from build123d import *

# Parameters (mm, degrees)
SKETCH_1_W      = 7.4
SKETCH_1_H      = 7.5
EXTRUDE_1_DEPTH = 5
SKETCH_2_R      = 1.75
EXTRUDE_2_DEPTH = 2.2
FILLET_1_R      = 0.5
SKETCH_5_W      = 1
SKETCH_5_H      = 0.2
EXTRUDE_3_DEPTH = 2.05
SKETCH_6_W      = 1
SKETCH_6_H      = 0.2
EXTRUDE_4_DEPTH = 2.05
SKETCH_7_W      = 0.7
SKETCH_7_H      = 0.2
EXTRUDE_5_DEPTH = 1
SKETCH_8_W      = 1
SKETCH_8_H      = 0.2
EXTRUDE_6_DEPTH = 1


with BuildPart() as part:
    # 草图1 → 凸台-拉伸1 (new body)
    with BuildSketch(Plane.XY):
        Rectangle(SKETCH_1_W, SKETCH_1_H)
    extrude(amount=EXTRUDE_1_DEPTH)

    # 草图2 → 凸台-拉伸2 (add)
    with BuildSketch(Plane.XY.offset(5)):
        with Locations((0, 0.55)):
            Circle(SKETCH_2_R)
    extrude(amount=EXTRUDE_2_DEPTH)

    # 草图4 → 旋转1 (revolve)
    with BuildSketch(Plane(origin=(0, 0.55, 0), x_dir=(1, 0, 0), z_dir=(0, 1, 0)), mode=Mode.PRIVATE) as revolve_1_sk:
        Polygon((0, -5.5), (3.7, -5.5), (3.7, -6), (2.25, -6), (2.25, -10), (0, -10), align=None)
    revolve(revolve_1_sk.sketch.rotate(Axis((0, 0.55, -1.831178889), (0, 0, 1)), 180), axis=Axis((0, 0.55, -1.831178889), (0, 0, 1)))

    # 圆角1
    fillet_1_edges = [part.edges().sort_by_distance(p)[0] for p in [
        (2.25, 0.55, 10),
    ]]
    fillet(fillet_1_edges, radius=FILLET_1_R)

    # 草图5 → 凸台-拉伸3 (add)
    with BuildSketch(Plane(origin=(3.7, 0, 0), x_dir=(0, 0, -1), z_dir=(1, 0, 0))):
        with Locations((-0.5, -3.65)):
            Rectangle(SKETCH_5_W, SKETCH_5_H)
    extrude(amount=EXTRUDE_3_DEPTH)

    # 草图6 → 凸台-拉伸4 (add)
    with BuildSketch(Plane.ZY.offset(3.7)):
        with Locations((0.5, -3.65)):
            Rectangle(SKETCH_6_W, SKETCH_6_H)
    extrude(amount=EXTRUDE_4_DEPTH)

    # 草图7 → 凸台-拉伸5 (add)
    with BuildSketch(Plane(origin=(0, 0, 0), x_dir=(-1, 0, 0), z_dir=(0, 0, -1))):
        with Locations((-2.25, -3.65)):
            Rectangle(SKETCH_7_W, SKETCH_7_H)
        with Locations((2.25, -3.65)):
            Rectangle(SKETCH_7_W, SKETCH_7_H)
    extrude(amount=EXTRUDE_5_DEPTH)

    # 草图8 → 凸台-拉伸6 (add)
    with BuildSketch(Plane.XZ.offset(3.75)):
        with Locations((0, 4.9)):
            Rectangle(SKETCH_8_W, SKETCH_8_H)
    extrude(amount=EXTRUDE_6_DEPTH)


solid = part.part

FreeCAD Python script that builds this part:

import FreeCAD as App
import Part
import Sketcher
from FreeCAD import Vector
Q = App.Units.Quantity


def edges_at(feature, points):
    """Names of the edges that pass closest to the given points."""
    edges = feature.Shape.Edges
    near = lambda p: min(range(len(edges)), key=lambda i: edges[i].distToShape(Part.Vertex(*p))[0])
    return sorted({f"Edge{near(p) + 1}" for p in points})

doc = App.newDocument("Part")
params = doc.addObject("Spreadsheet::Sheet", "Params")
for row, (alias, value) in enumerate([
    ("sketch1_width", "7.4 mm"),
    ("sketch1_height", "7.5 mm"),
    ("pad1_length", "5 mm"),
    ("sketch2_diameter", "3.5 mm"),
    ("pad2_length", "2.2 mm"),
    ("sketch3_height", "4 mm"),
    ("sketch3_width", "3.7 mm"),
    ("sketch3_height2", "4.5 mm"),
    ("sketch3_width2", "2.25 mm"),
    ("revolution_angle", "360 deg"),
    ("fillet_radius", "0.5 mm"),
    ("sketch4_height", "1 mm"),
    ("sketch4_width", "0.2 mm"),
    ("pad3_length", "2.05 mm"),
    ("sketch5_height", "1 mm"),
    ("sketch5_width", "0.2 mm"),
    ("pad4_length", "2.05 mm"),
    ("sketch6_width", "0.7 mm"),
    ("sketch6_height", "0.2 mm"),
    ("pad5_length", "1 mm"),
    ("sketch7_width", "1 mm"),
    ("sketch7_height", "0.2 mm"),
    ("pad6_length", "1 mm"),
], start=1):
    params.set(f"A{row}", alias)
    params.set(f"B{row}", "=" + value)
    params.setAlias(f"B{row}", alias)

body = doc.addObject("PartDesign::Body", "Body")

# Sketch on XY plane
sketch1 = body.newObject("Sketcher::SketchObject", "Sketch")
sketch1.AttachmentSupport = (doc.getObject("XY_Plane"), [""])
sketch1.MapMode = "FlatFace"
sketch1.addGeometry([
    Part.LineSegment(Vector(-4, 4, 0), Vector(-4, -4, 0)),
    Part.LineSegment(Vector(-4, -4, 0), Vector(4, -4, 0)),
    Part.LineSegment(Vector(4, -4, 0), Vector(4, 4, 0)),
    Part.LineSegment(Vector(4, 4, 0), Vector(-4, 4, 0)),
], False)
sketch1.addConstraint([
    Sketcher.Constraint("Coincident", 0, 2, 1, 1),
    Sketcher.Constraint("Coincident", 1, 2, 2, 1),
    Sketcher.Constraint("Coincident", 2, 2, 3, 1),
    Sketcher.Constraint("Coincident", 3, 2, 0, 1),
    Sketcher.Constraint("Vertical", 0),
    Sketcher.Constraint("Horizontal", 1),
    Sketcher.Constraint("Vertical", 2),
    Sketcher.Constraint("Horizontal", 3),
    Sketcher.Constraint("Symmetric", 0, 2, 2, 2, -1, 1),
    Sketcher.Constraint("DistanceX", 1, 1, 1, 2, Q("7.4 mm")),
    Sketcher.Constraint("DistanceY", 0, 2, 0, 1, Q("7.5 mm")),
])
sketch1.setExpression("Constraints[9]", "Params.sketch1_width")
sketch1.setExpression("Constraints[10]", "Params.sketch1_height")
pad1 = body.newObject("PartDesign::Pad", "Pad")
pad1.Profile = sketch1
pad1.setExpression("Length", "Params.pad1_length")

# Sketch on XY plane
sketch2 = body.newObject("Sketcher::SketchObject", "Sketch001")
sketch2.AttachmentSupport = (doc.getObject("XY_Plane"), [""])
sketch2.MapMode = "FlatFace"
sketch2.AttachmentOffset = App.Placement(Vector(0, 0, 5), App.Rotation())
sketch2.addGeometry(Part.Circle(Vector(0, 0.6, 0), Vector(0, 0, 1), 1.8), False)
sketch2.addConstraint([
    Sketcher.Constraint("PointOnObject", 0, 3, -2),
    Sketcher.Constraint("Diameter", 0, Q("3.5 mm")),
    Sketcher.Constraint("DistanceY", -1, 1, 0, 3, Q("0.55 mm")),
])
sketch2.setExpression("Constraints[1]", "Params.sketch2_diameter")
pad2 = body.newObject("PartDesign::Pad", "Pad001")
pad2.Profile = sketch2
pad2.setExpression("Length", "Params.pad2_length")

# Sketch on XZ plane
sketch3 = body.newObject("Sketcher::SketchObject", "Sketch002")
sketch3.AttachmentSupport = (doc.getObject("XZ_Plane"), [""])
sketch3.MapMode = "FlatFace"
sketch3.AttachmentOffset = App.Placement(Vector(0, 0, -0.55), App.Rotation())
sketch3.addGeometry([
    Part.LineSegment(Vector(3.7, 5.5, 0), Vector(0, 5.5, 0)),  # 0
    Part.LineSegment(Vector(0, 5.5, 0), Vector(0, 10, 0)),  # 1
    Part.LineSegment(Vector(0, 10, 0), Vector(2.2, 10, 0)),  # 2
    Part.LineSegment(Vector(2.2, 10, 0), Vector(2.2, 6, 0)),  # 3
    Part.LineSegment(Vector(2.2, 6, 0), Vector(3.7, 6, 0)),  # 4
    Part.LineSegment(Vector(3.7, 6, 0), Vector(3.7, 5.5, 0)),  # 5
], False)
sketch3.addConstraint([
    Sketcher.Constraint("Coincident", 0, 2, 1, 1),
    Sketcher.Constraint("Coincident", 1, 2, 2, 1),
    Sketcher.Constraint("Coincident", 2, 2, 3, 1),
    Sketcher.Constraint("Coincident", 3, 2, 4, 1),
    Sketcher.Constraint("Coincident", 4, 2, 5, 1),
    Sketcher.Constraint("Coincident", 5, 2, 0, 1),
    Sketcher.Constraint("Horizontal", 0),
    Sketcher.Constraint("Vertical", 1),
    Sketcher.Constraint("Horizontal", 2),
    Sketcher.Constraint("Vertical", 3),
    Sketcher.Constraint("Horizontal", 4),
    Sketcher.Constraint("Vertical", 5),
    Sketcher.Constraint("PointOnObject", 0, 2, -2),
    Sketcher.Constraint("DistanceY", 3, 2, 3, 1, Q("4 mm")),
    Sketcher.Constraint("DistanceX", 0, 2, 0, 1, Q("3.7 mm")),
    Sketcher.Constraint("DistanceY", 1, 1, 1, 2, Q("4.5 mm")),
    Sketcher.Constraint("DistanceY", -1, 1, 1, 2, Q("10 mm")),
    Sketcher.Constraint("DistanceX", 2, 1, 2, 2, Q("2.25 mm")),
])
sketch3.setExpression("Constraints[13]", "Params.sketch3_height")
sketch3.setExpression("Constraints[14]", "Params.sketch3_width")
sketch3.setExpression("Constraints[15]", "Params.sketch3_height2")
sketch3.setExpression("Constraints[17]", "Params.sketch3_width2")
revolution = body.newObject("PartDesign::Revolution", "Revolution")
revolution.Profile = sketch3
revolution.ReferenceAxis = (sketch3, ["V_Axis"])
revolution.setExpression("Angle", "Params.revolution_angle")
doc.recompute()

fillet = body.newObject("PartDesign::Fillet", "Fillet")
fillet.Base = (revolution, edges_at(revolution, [(2.25, 0.55, 10)]))
fillet.setExpression("Radius", "Params.fillet_radius")

# Sketch on YZ plane
sketch4 = body.newObject("Sketcher::SketchObject", "Sketch003")
sketch4.AttachmentSupport = (doc.getObject("YZ_Plane"), [""])
sketch4.MapMode = "FlatFace"
sketch4.AttachmentOffset = App.Placement(Vector(0, 0, 3.7), App.Rotation())
sketch4.addGeometry([
    Part.LineSegment(Vector(-3.55, 1, 0), Vector(-3.75, 1, 0)),
    Part.LineSegment(Vector(-3.75, 1, 0), Vector(-3.75, 0, 0)),
    Part.LineSegment(Vector(-3.75, 0, 0), Vector(-3.55, 0, 0)),
    Part.LineSegment(Vector(-3.55, 0, 0), Vector(-3.55, 1, 0)),
], False)
sketch4.addConstraint([
    Sketcher.Constraint("Coincident", 0, 2, 1, 1),
    Sketcher.Constraint("Coincident", 1, 2, 2, 1),
    Sketcher.Constraint("Coincident", 2, 2, 3, 1),
    Sketcher.Constraint("Coincident", 3, 2, 0, 1),
    Sketcher.Constraint("Horizontal", 0),
    Sketcher.Constraint("Vertical", 1),
    Sketcher.Constraint("Horizontal", 2),
    Sketcher.Constraint("Vertical", 3),
    Sketcher.Constraint("PointOnObject", 1, 2, -1),
    Sketcher.Constraint("DistanceY", 1, 2, 1, 1, Q("1 mm")),
    Sketcher.Constraint("DistanceX", 0, 2, 0, 1, Q("0.2 mm")),
    Sketcher.Constraint("DistanceX", 0, 2, -1, 1, Q("3.75 mm")),
])
sketch4.setExpression("Constraints[9]", "Params.sketch4_height")
sketch4.setExpression("Constraints[10]", "Params.sketch4_width")
pad3 = body.newObject("PartDesign::Pad", "Pad002")
pad3.Profile = sketch4
pad3.setExpression("Length", "Params.pad3_length")

# Sketch on YZ plane
sketch5 = body.newObject("Sketcher::SketchObject", "Sketch004")
sketch5.AttachmentSupport = (doc.getObject("YZ_Plane"), [""])
sketch5.MapMode = "FlatFace"
sketch5.AttachmentOffset = App.Placement(Vector(0, 0, -3.7), App.Rotation())
sketch5.addGeometry([
    Part.LineSegment(Vector(-3.55, 0, 0), Vector(-3.75, 0, 0)),
    Part.LineSegment(Vector(-3.75, 0, 0), Vector(-3.75, 1, 0)),
    Part.LineSegment(Vector(-3.75, 1, 0), Vector(-3.55, 1, 0)),
    Part.LineSegment(Vector(-3.55, 1, 0), Vector(-3.55, 0, 0)),
], False)
sketch5.addConstraint([
    Sketcher.Constraint("Coincident", 0, 2, 1, 1),
    Sketcher.Constraint("Coincident", 1, 2, 2, 1),
    Sketcher.Constraint("Coincident", 2, 2, 3, 1),
    Sketcher.Constraint("Coincident", 3, 2, 0, 1),
    Sketcher.Constraint("Horizontal", 0),
    Sketcher.Constraint("Vertical", 1),
    Sketcher.Constraint("Horizontal", 2),
    Sketcher.Constraint("Vertical", 3),
    Sketcher.Constraint("PointOnObject", 0, 2, -1),
    Sketcher.Constraint("DistanceY", 1, 1, 1, 2, Q("1 mm")),
    Sketcher.Constraint("DistanceX", 0, 2, 0, 1, Q("0.2 mm")),
    Sketcher.Constraint("DistanceX", 0, 2, -1, 1, Q("3.75 mm")),
])
sketch5.setExpression("Constraints[9]", "Params.sketch5_height")
sketch5.setExpression("Constraints[10]", "Params.sketch5_width")
pad4 = body.newObject("PartDesign::Pad", "Pad003")
pad4.Profile = sketch5
pad4.setExpression("Length", "Params.pad4_length")
pad4.Reversed = True

# Sketch on XY plane
sketch6 = body.newObject("Sketcher::SketchObject", "Sketch005")
sketch6.AttachmentSupport = (doc.getObject("XY_Plane"), [""])
sketch6.MapMode = "FlatFace"
sketch6.addGeometry([
    Part.LineSegment(Vector(2.6, -3.55, 0), Vector(2.6, -3.75, 0)),  # 0
    Part.LineSegment(Vector(2.6, -3.75, 0), Vector(1.9, -3.75, 0)),  # 1
    Part.LineSegment(Vector(1.9, -3.75, 0), Vector(1.9, -3.55, 0)),  # 2
    Part.LineSegment(Vector(1.9, -3.55, 0), Vector(2.6, -3.55, 0)),  # 3
    Part.LineSegment(Vector(-1.9, -3.55, 0), Vector(-1.9, -3.75, 0)),  # 4
    Part.LineSegment(Vector(-1.9, -3.75, 0), Vector(-2.6, -3.75, 0)),  # 5
    Part.LineSegment(Vector(-2.6, -3.75, 0), Vector(-2.6, -3.55, 0)),  # 6
    Part.LineSegment(Vector(-2.6, -3.55, 0), Vector(-1.9, -3.55, 0)),  # 7
], False)
sketch6.addConstraint([
    Sketcher.Constraint("Coincident", 0, 2, 1, 1),
    Sketcher.Constraint("Coincident", 1, 2, 2, 1),
    Sketcher.Constraint("Coincident", 2, 2, 3, 1),
    Sketcher.Constraint("Coincident", 3, 2, 0, 1),
    Sketcher.Constraint("Coincident", 4, 2, 5, 1),
    Sketcher.Constraint("Coincident", 5, 2, 6, 1),
    Sketcher.Constraint("Coincident", 6, 2, 7, 1),
    Sketcher.Constraint("Coincident", 7, 2, 4, 1),
    Sketcher.Constraint("Vertical", 0),
    Sketcher.Constraint("Horizontal", 1),
    Sketcher.Constraint("Vertical", 2),
    Sketcher.Constraint("Horizontal", 3),
    Sketcher.Constraint("Vertical", 4),
    Sketcher.Constraint("Horizontal", 5),
    Sketcher.Constraint("Vertical", 6),
    Sketcher.Constraint("Horizontal", 7),
    Sketcher.Constraint("Symmetric", 1, 2, 4, 2, -2),
    Sketcher.Constraint("Symmetric", 3, 2, 6, 2, -2),
    Sketcher.Constraint("DistanceX", 1, 2, 1, 1, Q("0.7 mm")),
    Sketcher.Constraint("DistanceY", 0, 2, 0, 1, Q("0.2 mm")),
    Sketcher.Constraint("DistanceX", -1, 1, 0, 2, Q("2.6 mm")),
    Sketcher.Constraint("DistanceY", 0, 2, -1, 1, Q("3.75 mm")),
])
sketch6.setExpression("Constraints[18]", "Params.sketch6_width")
sketch6.setExpression("Constraints[19]", "Params.sketch6_height")
pad5 = body.newObject("PartDesign::Pad", "Pad004")
pad5.Profile = sketch6
pad5.setExpression("Length", "Params.pad5_length")
pad5.Reversed = True

# Sketch on XZ plane
sketch7 = body.newObject("Sketcher::SketchObject", "Sketch006")
sketch7.AttachmentSupport = (doc.getObject("XZ_Plane"), [""])
sketch7.MapMode = "FlatFace"
sketch7.AttachmentOffset = App.Placement(Vector(0, 0, 3.75), App.Rotation())
sketch7.addGeometry([
    Part.LineSegment(Vector(-0.5, 5, 0), Vector(-0.5, 4.8, 0)),
    Part.LineSegment(Vector(-0.5, 4.8, 0), Vector(0.5, 4.8, 0)),
    Part.LineSegment(Vector(0.5, 4.8, 0), Vector(0.5, 5, 0)),
    Part.LineSegment(Vector(0.5, 5, 0), Vector(-0.5, 5, 0)),
], False)
sketch7.addConstraint([
    Sketcher.Constraint("Coincident", 0, 2, 1, 1),
    Sketcher.Constraint("Coincident", 1, 2, 2, 1),
    Sketcher.Constraint("Coincident", 2, 2, 3, 1),
    Sketcher.Constraint("Coincident", 3, 2, 0, 1),
    Sketcher.Constraint("Vertical", 0),
    Sketcher.Constraint("Horizontal", 1),
    Sketcher.Constraint("Vertical", 2),
    Sketcher.Constraint("Horizontal", 3),
    Sketcher.Constraint("DistanceX", 1, 1, 1, 2, Q("1 mm")),
    Sketcher.Constraint("DistanceY", 0, 2, 0, 1, Q("0.2 mm")),
    Sketcher.Constraint("DistanceY", -1, 1, 2, 2, Q("5 mm")),
    Sketcher.Constraint("DistanceX", 0, 2, -1, 1, Q("0.5 mm")),
])
sketch7.setExpression("Constraints[8]", "Params.sketch7_width")
sketch7.setExpression("Constraints[9]", "Params.sketch7_height")
pad6 = body.newObject("PartDesign::Pad", "Pad005")
pad6.Profile = sketch7
pad6.setExpression("Length", "Params.pad6_length")

doc.recompute()
